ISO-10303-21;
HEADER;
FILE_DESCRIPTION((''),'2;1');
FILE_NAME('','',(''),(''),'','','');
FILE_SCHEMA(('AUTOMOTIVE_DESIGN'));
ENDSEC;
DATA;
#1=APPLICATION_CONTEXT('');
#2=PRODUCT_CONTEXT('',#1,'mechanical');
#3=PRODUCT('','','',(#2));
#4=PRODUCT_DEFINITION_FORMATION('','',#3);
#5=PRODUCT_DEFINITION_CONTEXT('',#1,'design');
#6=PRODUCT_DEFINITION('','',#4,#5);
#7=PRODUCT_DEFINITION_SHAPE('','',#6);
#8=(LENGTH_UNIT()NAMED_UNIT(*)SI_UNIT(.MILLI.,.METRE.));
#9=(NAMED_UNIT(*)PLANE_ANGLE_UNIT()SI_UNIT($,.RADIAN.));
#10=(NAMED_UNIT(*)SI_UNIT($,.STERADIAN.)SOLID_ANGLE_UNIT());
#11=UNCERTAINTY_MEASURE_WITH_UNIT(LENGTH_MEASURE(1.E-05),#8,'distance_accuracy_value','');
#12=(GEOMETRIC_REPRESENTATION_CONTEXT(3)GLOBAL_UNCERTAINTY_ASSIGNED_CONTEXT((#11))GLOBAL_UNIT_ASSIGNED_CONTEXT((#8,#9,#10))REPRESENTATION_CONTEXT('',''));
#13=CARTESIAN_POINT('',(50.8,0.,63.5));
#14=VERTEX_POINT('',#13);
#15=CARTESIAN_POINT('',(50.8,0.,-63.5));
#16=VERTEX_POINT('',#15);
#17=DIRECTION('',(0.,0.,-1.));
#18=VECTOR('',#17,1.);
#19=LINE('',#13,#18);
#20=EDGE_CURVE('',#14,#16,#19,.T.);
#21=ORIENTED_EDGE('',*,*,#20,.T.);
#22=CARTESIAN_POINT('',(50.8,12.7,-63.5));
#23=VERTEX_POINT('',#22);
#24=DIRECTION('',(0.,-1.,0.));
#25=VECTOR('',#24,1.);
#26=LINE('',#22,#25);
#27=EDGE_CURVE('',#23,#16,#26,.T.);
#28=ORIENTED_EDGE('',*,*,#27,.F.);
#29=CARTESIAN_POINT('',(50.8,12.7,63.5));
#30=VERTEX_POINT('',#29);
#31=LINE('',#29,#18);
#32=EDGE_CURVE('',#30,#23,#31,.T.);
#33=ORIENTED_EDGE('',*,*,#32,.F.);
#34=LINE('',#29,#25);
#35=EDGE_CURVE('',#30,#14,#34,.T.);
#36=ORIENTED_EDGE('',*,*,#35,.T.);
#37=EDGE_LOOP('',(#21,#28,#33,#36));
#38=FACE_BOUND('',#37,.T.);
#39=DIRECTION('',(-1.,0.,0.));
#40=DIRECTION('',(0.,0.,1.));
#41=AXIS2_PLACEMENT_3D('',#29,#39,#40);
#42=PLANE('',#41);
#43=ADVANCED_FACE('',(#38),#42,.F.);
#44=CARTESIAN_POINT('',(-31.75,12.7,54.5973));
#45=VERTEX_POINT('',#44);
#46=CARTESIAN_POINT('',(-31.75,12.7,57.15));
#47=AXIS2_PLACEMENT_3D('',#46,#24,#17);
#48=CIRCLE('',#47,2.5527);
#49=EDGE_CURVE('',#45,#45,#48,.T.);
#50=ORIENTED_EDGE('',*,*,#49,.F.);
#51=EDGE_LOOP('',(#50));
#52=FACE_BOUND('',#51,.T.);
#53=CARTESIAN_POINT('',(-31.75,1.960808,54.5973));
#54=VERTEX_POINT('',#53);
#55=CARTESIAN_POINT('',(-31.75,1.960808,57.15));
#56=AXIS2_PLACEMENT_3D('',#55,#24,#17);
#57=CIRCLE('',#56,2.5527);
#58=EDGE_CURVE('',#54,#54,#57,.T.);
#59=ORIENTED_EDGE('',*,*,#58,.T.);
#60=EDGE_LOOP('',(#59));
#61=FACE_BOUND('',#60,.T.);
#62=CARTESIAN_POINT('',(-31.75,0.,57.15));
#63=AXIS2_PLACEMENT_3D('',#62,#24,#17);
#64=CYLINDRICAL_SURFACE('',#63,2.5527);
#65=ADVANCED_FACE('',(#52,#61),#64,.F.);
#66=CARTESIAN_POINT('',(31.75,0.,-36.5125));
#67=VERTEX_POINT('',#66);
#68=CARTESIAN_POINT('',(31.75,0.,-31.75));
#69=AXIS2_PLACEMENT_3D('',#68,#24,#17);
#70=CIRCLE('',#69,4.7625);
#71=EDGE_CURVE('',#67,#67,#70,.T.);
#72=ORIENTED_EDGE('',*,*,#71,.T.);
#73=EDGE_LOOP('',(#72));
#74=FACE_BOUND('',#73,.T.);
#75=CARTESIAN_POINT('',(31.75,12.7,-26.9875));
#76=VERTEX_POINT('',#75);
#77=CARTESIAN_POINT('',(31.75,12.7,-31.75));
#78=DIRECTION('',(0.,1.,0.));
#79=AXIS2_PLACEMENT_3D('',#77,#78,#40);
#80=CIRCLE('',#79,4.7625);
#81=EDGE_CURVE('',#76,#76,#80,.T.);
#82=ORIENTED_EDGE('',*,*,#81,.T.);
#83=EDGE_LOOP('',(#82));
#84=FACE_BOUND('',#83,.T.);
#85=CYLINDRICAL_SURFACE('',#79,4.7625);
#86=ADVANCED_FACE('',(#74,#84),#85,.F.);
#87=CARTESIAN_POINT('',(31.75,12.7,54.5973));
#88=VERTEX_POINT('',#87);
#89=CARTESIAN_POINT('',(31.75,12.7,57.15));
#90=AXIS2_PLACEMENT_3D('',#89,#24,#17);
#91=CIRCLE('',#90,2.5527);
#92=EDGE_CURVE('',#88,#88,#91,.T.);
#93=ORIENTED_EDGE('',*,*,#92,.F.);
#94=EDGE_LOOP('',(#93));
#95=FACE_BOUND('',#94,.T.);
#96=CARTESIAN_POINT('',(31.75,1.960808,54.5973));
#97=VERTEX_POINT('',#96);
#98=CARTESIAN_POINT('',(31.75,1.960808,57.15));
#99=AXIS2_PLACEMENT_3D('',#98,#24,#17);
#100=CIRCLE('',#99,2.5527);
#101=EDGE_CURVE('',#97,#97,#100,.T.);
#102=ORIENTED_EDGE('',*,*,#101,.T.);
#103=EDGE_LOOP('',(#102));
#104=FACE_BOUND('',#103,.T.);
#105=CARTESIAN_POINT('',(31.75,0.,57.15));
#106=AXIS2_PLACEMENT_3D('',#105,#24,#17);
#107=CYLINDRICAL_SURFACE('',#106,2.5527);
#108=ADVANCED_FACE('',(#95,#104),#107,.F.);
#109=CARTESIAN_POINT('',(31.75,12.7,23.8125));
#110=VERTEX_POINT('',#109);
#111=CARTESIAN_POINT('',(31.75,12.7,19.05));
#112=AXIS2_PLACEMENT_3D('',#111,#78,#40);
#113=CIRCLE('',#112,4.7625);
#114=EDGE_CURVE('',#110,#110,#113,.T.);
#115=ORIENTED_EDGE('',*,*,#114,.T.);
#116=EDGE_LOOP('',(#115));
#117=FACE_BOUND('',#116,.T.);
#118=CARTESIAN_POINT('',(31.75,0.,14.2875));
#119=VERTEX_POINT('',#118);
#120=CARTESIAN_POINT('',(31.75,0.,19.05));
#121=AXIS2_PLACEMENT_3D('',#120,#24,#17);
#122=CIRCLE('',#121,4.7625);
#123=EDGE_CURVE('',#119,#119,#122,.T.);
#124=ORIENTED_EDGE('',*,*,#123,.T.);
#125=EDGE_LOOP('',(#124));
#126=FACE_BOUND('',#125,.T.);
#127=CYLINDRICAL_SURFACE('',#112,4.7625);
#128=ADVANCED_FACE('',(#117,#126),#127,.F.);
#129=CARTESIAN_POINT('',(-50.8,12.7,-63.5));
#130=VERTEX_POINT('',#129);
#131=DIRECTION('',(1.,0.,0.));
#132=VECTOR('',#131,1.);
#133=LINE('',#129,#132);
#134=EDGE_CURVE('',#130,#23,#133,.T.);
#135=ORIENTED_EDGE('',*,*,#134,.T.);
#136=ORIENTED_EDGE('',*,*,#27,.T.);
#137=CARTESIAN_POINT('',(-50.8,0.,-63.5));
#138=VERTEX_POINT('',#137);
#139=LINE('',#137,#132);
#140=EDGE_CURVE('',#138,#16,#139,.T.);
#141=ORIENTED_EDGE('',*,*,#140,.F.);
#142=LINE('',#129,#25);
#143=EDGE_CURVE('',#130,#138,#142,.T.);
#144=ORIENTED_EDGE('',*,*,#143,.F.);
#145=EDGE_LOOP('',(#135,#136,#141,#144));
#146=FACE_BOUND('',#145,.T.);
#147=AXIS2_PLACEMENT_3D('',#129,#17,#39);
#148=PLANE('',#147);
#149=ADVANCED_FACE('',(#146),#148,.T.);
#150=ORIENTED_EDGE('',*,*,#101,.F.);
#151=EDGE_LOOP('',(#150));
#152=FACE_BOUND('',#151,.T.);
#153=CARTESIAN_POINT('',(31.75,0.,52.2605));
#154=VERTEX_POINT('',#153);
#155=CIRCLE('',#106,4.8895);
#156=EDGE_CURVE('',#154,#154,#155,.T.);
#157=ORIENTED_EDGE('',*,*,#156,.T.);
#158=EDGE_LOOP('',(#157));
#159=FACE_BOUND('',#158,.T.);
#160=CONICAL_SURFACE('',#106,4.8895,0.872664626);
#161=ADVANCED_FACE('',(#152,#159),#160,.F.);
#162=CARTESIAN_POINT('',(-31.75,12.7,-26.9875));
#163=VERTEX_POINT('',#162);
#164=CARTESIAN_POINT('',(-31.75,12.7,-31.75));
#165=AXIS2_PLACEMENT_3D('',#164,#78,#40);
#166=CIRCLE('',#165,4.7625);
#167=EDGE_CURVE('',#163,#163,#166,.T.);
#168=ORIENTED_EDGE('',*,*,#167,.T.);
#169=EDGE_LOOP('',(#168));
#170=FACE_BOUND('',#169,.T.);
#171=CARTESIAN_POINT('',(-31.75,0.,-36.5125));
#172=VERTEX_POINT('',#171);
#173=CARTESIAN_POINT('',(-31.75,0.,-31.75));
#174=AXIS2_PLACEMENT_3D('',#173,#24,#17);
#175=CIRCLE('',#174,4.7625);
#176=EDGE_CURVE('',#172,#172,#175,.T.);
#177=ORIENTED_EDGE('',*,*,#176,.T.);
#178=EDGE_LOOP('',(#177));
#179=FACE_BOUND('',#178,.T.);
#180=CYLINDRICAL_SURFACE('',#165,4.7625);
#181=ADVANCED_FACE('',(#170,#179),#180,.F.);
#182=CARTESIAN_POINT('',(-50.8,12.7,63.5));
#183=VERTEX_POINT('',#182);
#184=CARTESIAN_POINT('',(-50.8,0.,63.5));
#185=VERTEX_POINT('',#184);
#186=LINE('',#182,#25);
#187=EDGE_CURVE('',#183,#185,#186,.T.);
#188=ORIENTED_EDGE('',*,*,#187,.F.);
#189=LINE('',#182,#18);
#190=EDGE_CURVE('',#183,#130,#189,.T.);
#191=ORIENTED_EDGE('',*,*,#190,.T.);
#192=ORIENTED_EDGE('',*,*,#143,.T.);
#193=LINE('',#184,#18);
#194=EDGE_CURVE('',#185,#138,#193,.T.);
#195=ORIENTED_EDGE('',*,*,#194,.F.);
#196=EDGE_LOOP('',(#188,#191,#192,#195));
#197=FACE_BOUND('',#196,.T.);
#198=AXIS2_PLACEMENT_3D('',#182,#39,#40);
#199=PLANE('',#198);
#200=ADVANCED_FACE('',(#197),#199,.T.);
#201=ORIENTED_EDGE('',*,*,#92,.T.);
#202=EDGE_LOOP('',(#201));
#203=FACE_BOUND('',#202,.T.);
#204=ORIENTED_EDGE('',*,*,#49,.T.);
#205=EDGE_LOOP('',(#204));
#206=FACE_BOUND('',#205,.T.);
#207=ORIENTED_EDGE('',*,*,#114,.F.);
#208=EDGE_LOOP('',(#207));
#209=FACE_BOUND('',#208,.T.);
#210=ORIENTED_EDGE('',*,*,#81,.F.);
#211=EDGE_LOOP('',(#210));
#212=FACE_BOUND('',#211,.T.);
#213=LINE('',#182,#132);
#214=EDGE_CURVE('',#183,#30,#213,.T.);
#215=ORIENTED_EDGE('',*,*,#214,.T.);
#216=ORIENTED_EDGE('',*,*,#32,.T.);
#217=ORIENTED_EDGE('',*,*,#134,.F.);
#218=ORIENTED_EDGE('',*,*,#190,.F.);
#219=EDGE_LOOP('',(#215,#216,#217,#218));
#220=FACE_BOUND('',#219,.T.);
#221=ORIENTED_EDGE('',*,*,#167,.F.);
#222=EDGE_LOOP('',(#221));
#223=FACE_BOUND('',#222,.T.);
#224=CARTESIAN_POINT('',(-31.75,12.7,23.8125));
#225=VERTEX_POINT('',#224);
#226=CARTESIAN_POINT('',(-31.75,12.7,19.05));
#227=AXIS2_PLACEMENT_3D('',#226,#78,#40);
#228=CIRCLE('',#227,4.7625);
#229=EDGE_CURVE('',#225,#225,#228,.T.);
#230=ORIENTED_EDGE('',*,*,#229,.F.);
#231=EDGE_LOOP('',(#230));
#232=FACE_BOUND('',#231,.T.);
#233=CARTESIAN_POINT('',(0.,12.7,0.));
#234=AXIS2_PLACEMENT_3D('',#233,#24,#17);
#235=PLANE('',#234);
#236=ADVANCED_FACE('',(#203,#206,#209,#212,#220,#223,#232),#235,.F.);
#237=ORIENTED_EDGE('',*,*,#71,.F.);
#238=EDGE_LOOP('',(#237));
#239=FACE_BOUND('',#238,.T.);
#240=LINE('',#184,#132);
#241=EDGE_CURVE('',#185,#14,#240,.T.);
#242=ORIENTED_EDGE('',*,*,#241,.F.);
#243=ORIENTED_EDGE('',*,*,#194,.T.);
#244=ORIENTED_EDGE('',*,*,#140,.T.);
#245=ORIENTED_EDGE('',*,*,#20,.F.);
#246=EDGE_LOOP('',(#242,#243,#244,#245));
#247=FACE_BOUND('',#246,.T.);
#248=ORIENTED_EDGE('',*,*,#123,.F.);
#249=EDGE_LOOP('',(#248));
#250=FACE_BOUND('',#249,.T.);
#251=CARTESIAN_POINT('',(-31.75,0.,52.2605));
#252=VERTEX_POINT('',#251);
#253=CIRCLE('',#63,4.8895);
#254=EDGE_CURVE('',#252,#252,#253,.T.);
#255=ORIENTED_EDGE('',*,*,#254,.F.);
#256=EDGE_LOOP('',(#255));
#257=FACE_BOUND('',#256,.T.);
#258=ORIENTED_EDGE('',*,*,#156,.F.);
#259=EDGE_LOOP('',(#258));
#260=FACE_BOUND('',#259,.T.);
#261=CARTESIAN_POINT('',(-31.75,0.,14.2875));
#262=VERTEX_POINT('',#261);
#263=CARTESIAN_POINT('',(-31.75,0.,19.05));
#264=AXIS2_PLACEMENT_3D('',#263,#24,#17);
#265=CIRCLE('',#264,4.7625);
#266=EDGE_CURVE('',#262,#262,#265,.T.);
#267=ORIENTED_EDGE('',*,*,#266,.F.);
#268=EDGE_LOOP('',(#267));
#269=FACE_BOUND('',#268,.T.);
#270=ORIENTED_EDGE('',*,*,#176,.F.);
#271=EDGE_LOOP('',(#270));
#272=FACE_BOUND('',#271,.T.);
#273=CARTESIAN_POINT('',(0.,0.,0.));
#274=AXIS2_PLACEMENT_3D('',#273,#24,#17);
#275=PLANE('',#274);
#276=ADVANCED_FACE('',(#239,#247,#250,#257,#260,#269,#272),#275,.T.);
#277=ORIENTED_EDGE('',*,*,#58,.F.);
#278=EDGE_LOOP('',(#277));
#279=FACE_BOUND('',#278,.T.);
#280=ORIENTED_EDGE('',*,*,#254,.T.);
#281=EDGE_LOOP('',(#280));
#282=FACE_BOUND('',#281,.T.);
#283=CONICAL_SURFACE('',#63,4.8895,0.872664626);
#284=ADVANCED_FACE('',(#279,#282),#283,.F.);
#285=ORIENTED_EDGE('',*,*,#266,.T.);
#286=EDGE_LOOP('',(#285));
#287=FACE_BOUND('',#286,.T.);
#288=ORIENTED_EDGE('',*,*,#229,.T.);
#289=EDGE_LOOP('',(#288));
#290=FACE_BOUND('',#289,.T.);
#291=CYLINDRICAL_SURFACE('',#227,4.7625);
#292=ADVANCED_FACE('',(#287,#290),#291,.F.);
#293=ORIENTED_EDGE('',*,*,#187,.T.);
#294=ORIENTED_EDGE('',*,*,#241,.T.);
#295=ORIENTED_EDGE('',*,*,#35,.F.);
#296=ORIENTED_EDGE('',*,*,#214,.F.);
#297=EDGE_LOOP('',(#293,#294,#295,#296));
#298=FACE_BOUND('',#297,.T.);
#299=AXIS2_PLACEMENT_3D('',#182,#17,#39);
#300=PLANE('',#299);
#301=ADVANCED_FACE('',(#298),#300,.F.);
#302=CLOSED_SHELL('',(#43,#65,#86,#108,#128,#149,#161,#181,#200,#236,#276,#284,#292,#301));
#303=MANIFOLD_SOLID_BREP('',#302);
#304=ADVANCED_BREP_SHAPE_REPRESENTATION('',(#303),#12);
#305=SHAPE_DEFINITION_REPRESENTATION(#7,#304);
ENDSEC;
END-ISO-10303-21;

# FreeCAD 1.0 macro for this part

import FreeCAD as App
import Part
import Sketcher

V = App.Vector
Q = App.Units.Quantity

doc = App.newDocument("Part")
body = doc.addObject("PartDesign::Body", "Body")

sketch1 = body.newObject("Sketcher::SketchObject", "Sketch")
sketch1.AttachmentSupport = (doc.getObject("XZ_Plane"), [""])
sketch1.MapMode = "FlatFace"
sketch1.addGeometry(Part.LineSegment(V(-51, -64, 0), V(-51, 64, 0)), False)
sketch1.addGeometry(Part.LineSegment(V(-51, 64, 0), V(51, 64, 0)), False)
sketch1.addGeometry(Part.LineSegment(V(51, 64, 0), V(51, -64, 0)), False)
sketch1.addGeometry(Part.LineSegment(V(51, -64, 0), V(-51, -64, 0)), False)
sketch1.addConstraint(Sketcher.Constraint("Coincident", 0, 2, 1, 1))
sketch1.addConstraint(Sketcher.Constraint("Coincident", 1, 2, 2, 1))
sketch1.addConstraint(Sketcher.Constraint("Coincident", 2, 2, 3, 1))
sketch1.addConstraint(Sketcher.Constraint("Coincident", 3, 2, 0, 1))
sketch1.addConstraint(Sketcher.Constraint("Vertical", 0))
sketch1.addConstraint(Sketcher.Constraint("Horizontal", 1))
sketch1.addConstraint(Sketcher.Constraint("Vertical", 2))
sketch1.addConstraint(Sketcher.Constraint("Horizontal", 3))
sketch1.addConstraint(Sketcher.Constraint("Symmetric", 0, 2, 2, 2, -1, 1))
sketch1.addConstraint(Sketcher.Constraint("DistanceX", 1, 1, 1, 2, Q("4 in")))
sketch1.addConstraint(Sketcher.Constraint("DistanceY", 0, 1, 0, 2, Q("5 in")))
pad1 = body.newObject("PartDesign::Pad", "Pad")
pad1.Profile = sketch1
pad1.Length = Q("0.5 in")
pad1.Reversed = True

sketch2 = body.newObject("Sketcher::SketchObject", "Sketch001")
sketch2.AttachmentSupport = (doc.getObject("XZ_Plane"), [""])
sketch2.MapMode = "FlatFace"
sketch2.addGeometry(Part.Circle(V(-31.8, 57.1, 0), V(0, 0, 1), 2.6), False)
sketch2.addGeometry(Part.Circle(V(31.8, 57.1, 0), V(0, 0, 1), 2.6), False)
sketch2.addConstraint(Sketcher.Constraint("Equal", 0, 1))
sketch2.addConstraint(Sketcher.Constraint("Symmetric", 0, 3, 1, 3, -2))
sketch2.addConstraint(Sketcher.Constraint("Diameter", 0, Q("0.201 in")))
sketch2.addConstraint(Sketcher.Constraint("DistanceX", 0, 3, 1, 3, Q("2.5 in")))
sketch2.addConstraint(Sketcher.Constraint("DistanceY", -1, 1, 0, 3, Q("2.25 in")))
doc.recompute()
hole = body.newObject("PartDesign::Hole", "Hole")
hole.Profile = sketch2
hole.ThreadType = "None"
hole.Diameter = Q("0.201 in")
hole.DepthType = "Dimension"
hole.Depth = Q("0.5 in")
hole.DrillPoint = "Angled"
hole.DrillPointAngle = 118
hole.HoleCutType = "Countersink"
hole.HoleCutDiameter = Q("0.385 in")
hole.HoleCutCountersinkAngle = 100

sketch3 = body.newObject("Sketcher::SketchObject", "Sketch002")
sketch3.AttachmentSupport = (doc.getObject("XZ_Plane"), [""])
sketch3.MapMode = "FlatFace"
sketch3.AttachmentOffset = App.Placement(V(0, 0, -0.5 * 25.4), App.Rotation())
sketch3.addGeometry(Part.Circle(V(-31.8, -31.8, 0), V(0, 0, 1), 4.8), False)
sketch3.addGeometry(Part.Circle(V(31.8, -31.8, 0), V(0, 0, 1), 4.8), False)
sketch3.addGeometry(Part.Circle(V(-31.8, 19.1, 0), V(0, 0, 1), 4.8), False)
sketch3.addGeometry(Part.Circle(V(31.8, 19.1, 0), V(0, 0, 1), 4.8), False)
sketch3.addConstraint(Sketcher.Constraint("Equal", 0, 1))
sketch3.addConstraint(Sketcher.Constraint("Equal", 1, 2))
sketch3.addConstraint(Sketcher.Constraint("Equal", 2, 3))
sketch3.addConstraint(Sketcher.Constraint("Symmetric", 0, 3, 1, 3, -2))
sketch3.addConstraint(Sketcher.Constraint("Symmetric", 2, 3, 3, 3, -2))
sketch3.addConstraint(Sketcher.Constraint("Vertical", 0, 3, 2, 3))
sketch3.addConstraint(Sketcher.Constraint("Diameter", 0, Q("0.375 in")))
sketch3.addConstraint(Sketcher.Constraint("DistanceY", 0, 3, 2, 3, Q("2 in")))
sketch3.addConstraint(Sketcher.Constraint("DistanceX", 0, 3, 1, 3, Q("2.5 in")))
sketch3.addConstraint(Sketcher.Constraint("DistanceY", 0, 3, -1, 1, Q("1.25 in")))
doc.recompute()
hole2 = body.newObject("PartDesign::Hole", "Hole001")
hole2.Profile = sketch3
hole2.ThreadType = "None"
hole2.Diameter = Q("0.375 in")
hole2.DepthType = "Dimension"
hole2.Depth = Q("1 in")
hole2.DrillPoint = "Angled"
hole2.DrillPointAngle = 118
hole2.Reversed = True

doc.recompute()
